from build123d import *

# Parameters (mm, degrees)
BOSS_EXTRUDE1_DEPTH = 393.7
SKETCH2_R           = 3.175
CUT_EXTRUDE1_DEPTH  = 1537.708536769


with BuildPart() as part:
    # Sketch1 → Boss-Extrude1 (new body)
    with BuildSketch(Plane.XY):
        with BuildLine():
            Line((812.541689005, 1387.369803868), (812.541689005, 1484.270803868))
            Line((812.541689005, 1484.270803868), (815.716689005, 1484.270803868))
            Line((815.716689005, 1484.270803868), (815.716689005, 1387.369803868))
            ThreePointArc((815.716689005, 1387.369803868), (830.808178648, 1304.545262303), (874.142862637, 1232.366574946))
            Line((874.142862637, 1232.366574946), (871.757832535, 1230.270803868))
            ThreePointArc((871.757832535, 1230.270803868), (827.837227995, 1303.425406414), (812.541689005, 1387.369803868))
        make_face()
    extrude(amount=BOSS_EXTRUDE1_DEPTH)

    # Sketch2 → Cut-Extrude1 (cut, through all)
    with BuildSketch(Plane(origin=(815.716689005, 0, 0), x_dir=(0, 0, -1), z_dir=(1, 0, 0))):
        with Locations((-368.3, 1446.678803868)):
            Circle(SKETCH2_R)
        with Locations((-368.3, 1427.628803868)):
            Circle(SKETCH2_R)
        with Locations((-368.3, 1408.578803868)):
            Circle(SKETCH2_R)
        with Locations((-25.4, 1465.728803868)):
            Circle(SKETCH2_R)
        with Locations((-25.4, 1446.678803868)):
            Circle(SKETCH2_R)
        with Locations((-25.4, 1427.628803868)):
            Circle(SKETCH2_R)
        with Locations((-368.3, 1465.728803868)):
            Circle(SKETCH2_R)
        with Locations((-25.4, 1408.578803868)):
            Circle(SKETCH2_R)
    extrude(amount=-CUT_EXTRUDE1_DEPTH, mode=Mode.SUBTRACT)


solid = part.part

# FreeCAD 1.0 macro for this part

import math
import FreeCAD as App
import Part
import Sketcher
from FreeCAD import Vector
Q = App.Units.Quantity

doc = App.newDocument("Part")
body = doc.addObject("PartDesign::Body", "Body")

# Sketch on XY plane
sketch1 = body.newObject("Sketcher::SketchObject", "Sketch")
sketch1.AttachmentSupport = (doc.getObject("XY_Plane"), [""])
sketch1.MapMode = "FlatFace"
sketch1.addGeometry([
    Part.LineSegment(Vector(812.5, 1484.3, 0), Vector(812.5, 1387.4, 0)),  # 0
    Part.ArcOfCircle(Part.Circle(Vector(1050.5, 1387.4, 0), Vector(0, 0, 1), 238), math.radians(-180), math.radians(-139)),  # 1
    Part.LineSegment(Vector(871.8, 1230.3, 0), Vector(874.1, 1232.4, 0)),  # 2
    Part.ArcOfCircle(Part.Circle(Vector(1050.5, 1387.4, 0), Vector(0, 0, 1), 234.8), math.radians(180), math.radians(221)),  # 3
    Part.LineSegment(Vector(815.7, 1387.4, 0), Vector(815.7, 1484.3, 0)),  # 4
    Part.LineSegment(Vector(815.7, 1484.3, 0), Vector(812.5, 1484.3, 0)),  # 5
], False)
sketch1.addConstraint([
    Sketcher.Constraint("Tangent", 0, 2, 1, 1),
    Sketcher.Constraint("Coincident", 1, 2, 2, 1),
    Sketcher.Constraint("Coincident", 2, 2, 3, 2),
    Sketcher.Constraint("Tangent", 3, 1, 4, 1),
    Sketcher.Constraint("Coincident", 4, 2, 5, 1),
    Sketcher.Constraint("Coincident", 5, 2, 0, 1),
    Sketcher.Constraint("Vertical", 0),
    Sketcher.Constraint("Vertical", 4),
    Sketcher.Constraint("Horizontal", 5),
    Sketcher.Constraint("Coincident", 3, 3, 1, 3),
    Sketcher.Constraint("Radius", 1, Q("9.37 in")),
    Sketcher.Constraint("Radius", 3, Q("9.245 in")),
    Sketcher.Constraint("DistanceY", 0, 2, 0, 1, Q("3.815 in")),
    Sketcher.Constraint("DistanceY", 1, 2, 0, 2, Q("6.185 in")),
    Sketcher.Constraint("DistanceX", -1, 1, 1, 3, Q("1050.539689 mm")),
    Sketcher.Constraint("DistanceX", 1, 2, 2, 2, Q("2.38503 mm")),
    Sketcher.Constraint("DistanceY", -1, 1, 1, 3, Q("1387.369804 mm")),
])
pad1 = body.newObject("PartDesign::Pad", "Pad")
pad1.Profile = sketch1
pad1.Length = Q("15.5 in")

# Sketch on YZ plane
sketch2 = body.newObject("Sketcher::SketchObject", "Sketch001")
sketch2.AttachmentSupport = (doc.getObject("YZ_Plane"), [""])
sketch2.MapMode = "FlatFace"
sketch2.AttachmentOffset = App.Placement(Vector(0, 0, 815.716689), App.Rotation())
sketch2.addGeometry([
    Part.Circle(Vector(1446.7, 368.3, 0), Vector(0, 0, 1), 3.2),  # 0
    Part.Circle(Vector(1427.6, 368.3, 0), Vector(0, 0, 1), 3.2),  # 1
    Part.Circle(Vector(1408.6, 368.3, 0), Vector(0, 0, 1), 3.2),  # 2
    Part.Circle(Vector(1465.7, 25.4, 0), Vector(0, 0, 1), 3.2),  # 3
    Part.Circle(Vector(1446.7, 25.4, 0), Vector(0, 0, 1), 3.2),  # 4
    Part.Circle(Vector(1427.6, 25.4, 0), Vector(0, 0, 1), 3.2),  # 5
    Part.Circle(Vector(1465.7, 368.3, 0), Vector(0, 0, 1), 3.2),  # 6
    Part.Circle(Vector(1408.6, 25.4, 0), Vector(0, 0, 1), 3.2),  # 7
], False)
sketch2.addConstraint([
    Sketcher.Constraint("Equal", 0, 1),
    Sketcher.Constraint("Equal", 1, 2),
    Sketcher.Constraint("Equal", 2, 3),
    Sketcher.Constraint("Equal", 3, 4),
    Sketcher.Constraint("Equal", 4, 5),
    Sketcher.Constraint("Equal", 5, 6),
    Sketcher.Constraint("Equal", 6, 7),
    Sketcher.Constraint("Horizontal", 0, 3, 1, 3),
    Sketcher.Constraint("Horizontal", 1, 3, 2, 3),
    Sketcher.Constraint("Horizontal", 3, 3, 4, 3),
    Sketcher.Constraint("Horizontal", 4, 3, 5, 3),
    Sketcher.Constraint("Horizontal", 2, 3, 6, 3),
    Sketcher.Constraint("Horizontal", 5, 3, 7, 3),
    Sketcher.Constraint("Vertical", 0, 3, 4, 3),
    Sketcher.Constraint("Vertical", 1, 3, 5, 3),
    Sketcher.Constraint("Vertical", 3, 3, 6, 3),
    Sketcher.Constraint("Vertical", 2, 3, 7, 3),
    Sketcher.Constraint("Diameter", 0, Q("0.25 in")),
    Sketcher.Constraint("DistanceY", -1, 1, 3, 3, Q("1 in")),
    Sketcher.Constraint("DistanceY", -1, 1, 0, 3, Q("14.5 in")),
    Sketcher.Constraint("DistanceX", 2, 3, 0, 3, Q("1.5 in")),
    Sketcher.Constraint("DistanceX", 1, 3, 3, 3, Q("1.5 in")),
    Sketcher.Constraint("DistanceX", 1, 3, 0, 3, Q("0.75 in")),
    Sketcher.Constraint("DistanceX", -1, 1, 0, 3, Q("1446.678804 mm")),
])
pocket1 = body.newObject("PartDesign::Pocket", "Pocket")
pocket1.Profile = sketch2
pocket1.Type = "ThroughAll"

doc.recompute()
